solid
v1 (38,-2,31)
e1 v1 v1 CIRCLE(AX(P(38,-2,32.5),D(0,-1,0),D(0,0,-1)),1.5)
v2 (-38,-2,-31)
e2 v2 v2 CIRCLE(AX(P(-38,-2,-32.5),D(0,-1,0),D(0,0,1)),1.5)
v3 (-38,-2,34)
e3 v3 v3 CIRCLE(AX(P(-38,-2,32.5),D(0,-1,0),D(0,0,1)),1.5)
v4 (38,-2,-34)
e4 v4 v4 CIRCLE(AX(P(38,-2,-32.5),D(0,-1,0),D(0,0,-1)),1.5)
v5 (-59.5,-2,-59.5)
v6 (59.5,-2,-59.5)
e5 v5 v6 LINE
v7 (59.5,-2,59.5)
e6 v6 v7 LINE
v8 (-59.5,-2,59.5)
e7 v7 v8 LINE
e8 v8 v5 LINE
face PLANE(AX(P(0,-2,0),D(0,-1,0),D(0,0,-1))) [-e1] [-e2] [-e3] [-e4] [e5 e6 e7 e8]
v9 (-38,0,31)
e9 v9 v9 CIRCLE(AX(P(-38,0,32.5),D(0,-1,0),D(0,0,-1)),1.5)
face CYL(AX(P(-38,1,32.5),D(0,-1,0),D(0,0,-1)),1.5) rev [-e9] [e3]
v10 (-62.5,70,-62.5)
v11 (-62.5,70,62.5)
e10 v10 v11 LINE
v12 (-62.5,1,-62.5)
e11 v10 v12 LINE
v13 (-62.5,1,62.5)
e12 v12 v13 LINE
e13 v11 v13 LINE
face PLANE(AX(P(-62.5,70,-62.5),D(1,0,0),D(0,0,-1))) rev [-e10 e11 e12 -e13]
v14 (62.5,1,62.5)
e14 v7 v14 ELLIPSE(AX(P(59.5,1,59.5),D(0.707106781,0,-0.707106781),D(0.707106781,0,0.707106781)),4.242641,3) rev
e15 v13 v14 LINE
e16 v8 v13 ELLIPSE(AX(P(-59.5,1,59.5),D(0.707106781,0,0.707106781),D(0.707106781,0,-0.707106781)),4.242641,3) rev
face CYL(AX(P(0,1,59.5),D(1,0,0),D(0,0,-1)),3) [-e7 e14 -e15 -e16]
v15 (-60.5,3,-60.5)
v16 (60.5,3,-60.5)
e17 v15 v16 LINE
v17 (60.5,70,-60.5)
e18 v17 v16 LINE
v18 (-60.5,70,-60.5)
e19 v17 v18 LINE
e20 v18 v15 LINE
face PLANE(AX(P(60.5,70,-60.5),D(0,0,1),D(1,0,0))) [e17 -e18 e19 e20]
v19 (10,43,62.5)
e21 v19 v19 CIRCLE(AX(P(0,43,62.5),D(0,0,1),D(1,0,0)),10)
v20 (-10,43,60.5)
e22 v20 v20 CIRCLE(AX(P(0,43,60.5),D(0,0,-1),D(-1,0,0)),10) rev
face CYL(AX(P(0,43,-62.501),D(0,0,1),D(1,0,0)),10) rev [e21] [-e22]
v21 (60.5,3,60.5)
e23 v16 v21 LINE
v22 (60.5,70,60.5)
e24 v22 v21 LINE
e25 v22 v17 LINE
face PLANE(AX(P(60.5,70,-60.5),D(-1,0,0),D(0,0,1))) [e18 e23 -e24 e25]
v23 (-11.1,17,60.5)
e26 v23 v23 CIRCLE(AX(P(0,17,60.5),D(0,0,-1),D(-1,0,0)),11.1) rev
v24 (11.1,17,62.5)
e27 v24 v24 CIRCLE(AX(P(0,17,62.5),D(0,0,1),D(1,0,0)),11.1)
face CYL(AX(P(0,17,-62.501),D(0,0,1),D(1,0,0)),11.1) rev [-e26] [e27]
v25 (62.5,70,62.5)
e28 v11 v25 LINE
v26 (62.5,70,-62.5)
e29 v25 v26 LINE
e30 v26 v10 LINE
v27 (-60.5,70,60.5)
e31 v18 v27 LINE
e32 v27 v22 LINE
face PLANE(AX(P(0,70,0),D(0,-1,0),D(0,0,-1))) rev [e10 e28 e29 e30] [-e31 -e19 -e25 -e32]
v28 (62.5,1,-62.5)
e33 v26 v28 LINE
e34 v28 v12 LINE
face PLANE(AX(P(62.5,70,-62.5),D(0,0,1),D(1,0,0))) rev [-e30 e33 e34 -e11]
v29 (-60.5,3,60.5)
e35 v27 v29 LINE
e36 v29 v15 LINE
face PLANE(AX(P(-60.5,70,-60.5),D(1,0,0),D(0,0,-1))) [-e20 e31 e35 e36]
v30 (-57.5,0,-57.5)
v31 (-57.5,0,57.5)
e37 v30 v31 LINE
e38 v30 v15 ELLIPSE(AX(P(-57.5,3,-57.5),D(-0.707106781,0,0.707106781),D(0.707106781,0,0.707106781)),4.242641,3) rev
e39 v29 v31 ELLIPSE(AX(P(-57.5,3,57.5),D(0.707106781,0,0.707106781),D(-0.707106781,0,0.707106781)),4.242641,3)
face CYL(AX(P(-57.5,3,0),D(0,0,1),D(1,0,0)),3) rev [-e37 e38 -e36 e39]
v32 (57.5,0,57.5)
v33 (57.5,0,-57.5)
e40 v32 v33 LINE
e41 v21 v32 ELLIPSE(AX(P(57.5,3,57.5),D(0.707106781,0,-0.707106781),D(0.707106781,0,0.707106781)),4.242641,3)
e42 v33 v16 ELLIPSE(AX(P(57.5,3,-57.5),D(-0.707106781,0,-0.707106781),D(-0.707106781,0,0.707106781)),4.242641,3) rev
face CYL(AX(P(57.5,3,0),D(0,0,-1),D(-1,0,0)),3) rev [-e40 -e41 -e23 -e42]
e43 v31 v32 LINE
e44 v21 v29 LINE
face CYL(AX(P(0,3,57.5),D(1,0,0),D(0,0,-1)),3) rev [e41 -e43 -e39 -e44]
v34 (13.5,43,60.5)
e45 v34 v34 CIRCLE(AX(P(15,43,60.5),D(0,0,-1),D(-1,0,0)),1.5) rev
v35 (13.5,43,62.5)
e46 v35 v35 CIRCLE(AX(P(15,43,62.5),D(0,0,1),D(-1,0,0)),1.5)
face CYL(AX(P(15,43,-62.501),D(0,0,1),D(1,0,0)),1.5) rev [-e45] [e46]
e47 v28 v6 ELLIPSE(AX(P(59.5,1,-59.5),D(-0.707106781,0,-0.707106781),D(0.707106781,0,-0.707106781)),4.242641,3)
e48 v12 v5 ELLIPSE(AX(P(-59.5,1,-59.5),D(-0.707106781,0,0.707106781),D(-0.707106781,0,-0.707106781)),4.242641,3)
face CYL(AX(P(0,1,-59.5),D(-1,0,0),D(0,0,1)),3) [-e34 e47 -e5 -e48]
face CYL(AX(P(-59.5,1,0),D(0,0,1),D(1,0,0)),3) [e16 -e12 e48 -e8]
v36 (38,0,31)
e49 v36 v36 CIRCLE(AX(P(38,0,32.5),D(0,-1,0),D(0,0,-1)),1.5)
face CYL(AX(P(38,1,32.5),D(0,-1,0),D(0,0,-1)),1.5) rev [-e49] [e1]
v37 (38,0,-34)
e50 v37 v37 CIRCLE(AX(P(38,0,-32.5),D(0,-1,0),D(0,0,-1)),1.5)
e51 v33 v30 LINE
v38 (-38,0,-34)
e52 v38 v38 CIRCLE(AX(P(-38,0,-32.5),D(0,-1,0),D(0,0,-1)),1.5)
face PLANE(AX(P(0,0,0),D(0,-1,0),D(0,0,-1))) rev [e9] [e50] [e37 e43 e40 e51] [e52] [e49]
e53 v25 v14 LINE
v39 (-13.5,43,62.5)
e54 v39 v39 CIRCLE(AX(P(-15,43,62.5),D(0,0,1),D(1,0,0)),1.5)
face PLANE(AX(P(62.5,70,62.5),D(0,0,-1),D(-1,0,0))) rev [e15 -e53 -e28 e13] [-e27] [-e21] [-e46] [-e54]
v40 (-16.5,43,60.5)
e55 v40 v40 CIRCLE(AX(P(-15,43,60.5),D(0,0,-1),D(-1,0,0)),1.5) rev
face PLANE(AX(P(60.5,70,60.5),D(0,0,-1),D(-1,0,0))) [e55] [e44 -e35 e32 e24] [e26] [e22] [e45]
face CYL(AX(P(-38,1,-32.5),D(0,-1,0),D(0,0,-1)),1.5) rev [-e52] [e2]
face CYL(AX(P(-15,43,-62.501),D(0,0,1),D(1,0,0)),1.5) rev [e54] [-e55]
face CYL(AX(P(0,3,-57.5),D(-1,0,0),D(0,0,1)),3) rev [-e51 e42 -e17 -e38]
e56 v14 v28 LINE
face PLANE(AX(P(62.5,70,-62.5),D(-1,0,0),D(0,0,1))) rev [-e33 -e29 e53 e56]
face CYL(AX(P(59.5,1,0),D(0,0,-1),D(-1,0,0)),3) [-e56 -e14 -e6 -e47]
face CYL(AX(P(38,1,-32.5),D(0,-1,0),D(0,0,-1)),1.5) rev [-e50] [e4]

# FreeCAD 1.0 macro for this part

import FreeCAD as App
import Part
import Sketcher

V = App.Vector
Q = App.Units.Quantity


def edges_at(feature, points):
    """Names of the edges that pass closest to the given points."""
    edges = feature.Shape.Edges
    near = lambda p: min(range(len(edges)), key=lambda i: edges[i].distToShape(Part.Vertex(*p))[0])
    return sorted({f"Edge{near(p) + 1}" for p in points})


def add_polygon(sketch, points):
    """Adds a closed chain of lines whose ends are joined by coincident constraints."""
    first, n = sketch.GeometryCount, len(points)
    for a, b in zip(points, points[1:] + points[:1]):
        sketch.addGeometry(Part.LineSegment(App.Vector(*a, 0), App.Vector(*b, 0)), False)
    for i in range(n):
        sketch.addConstraint(Sketcher.Constraint("Coincident", first + i, 2, first + (i + 1) % n, 1))

doc = App.newDocument("Part")
body = doc.addObject("PartDesign::Body", "Body")

# Sketch on XZ plane
sketch1 = body.newObject("Sketcher::SketchObject", "Sketch")
sketch1.AttachmentSupport = (doc.getObject("XZ_Plane"), [""])
sketch1.MapMode = "FlatFace"
add_polygon(sketch1, [(-62.5, -62.5), (-62.5, 62.5), (62.5, 62.5), (62.5, -62.5)])  # lines 0-3
add_polygon(sketch1, [(60.5, 60.5), (-60.5, 60.5), (-60.5, -60.5), (60.5, -60.5)])  # lines 4-7
sketch1.addConstraint([
    Sketcher.Constraint("Vertical", 0),
    Sketcher.Constraint("Horizontal", 1),
    Sketcher.Constraint("Vertical", 2),
    Sketcher.Constraint("Horizontal", 3),
    Sketcher.Constraint("Horizontal", 4),
    Sketcher.Constraint("Vertical", 5),
    Sketcher.Constraint("Horizontal", 6),
    Sketcher.Constraint("Vertical", 7),
    Sketcher.Constraint("Symmetric", 0, 2, 2, 2, -1, 1),
    Sketcher.Constraint("Symmetric", 4, 2, 6, 2, -1, 1),
    Sketcher.Constraint("Equal", 3, 0),
    Sketcher.Constraint("Equal", 6, 5),
    Sketcher.Constraint("DistanceX", 1, 1, 1, 2, Q("125 mm")),
    Sketcher.Constraint("DistanceX", 4, 2, 4, 1, Q("121 mm")),
])
pad1 = body.newObject("PartDesign::Pad", "Pad")
pad1.Profile = sketch1
pad1.Length = 70
pad1.Reversed = True

# Sketch on XZ plane
sketch2 = body.newObject("Sketcher::SketchObject", "Sketch001")
sketch2.AttachmentSupport = (doc.getObject("XZ_Plane"), [""])
sketch2.MapMode = "FlatFace"
add_polygon(sketch2, [(-62.5, 62.5), (-62.5, -62.5), (62.5, -62.5), (62.5, 62.5)])  # lines 0-3
sketch2.addConstraint([
    Sketcher.Constraint("Vertical", 0),
    Sketcher.Constraint("Horizontal", 1),
    Sketcher.Constraint("Vertical", 2),
    Sketcher.Constraint("Horizontal", 3),
    Sketcher.Constraint("Symmetric", 0, 2, 2, 2, -1, 1),
    Sketcher.Constraint("Equal", 3, 0),
    Sketcher.Constraint("DistanceX", 1, 1, 1, 2, Q("125 mm")),
])
pad2 = body.newObject("PartDesign::Pad", "Pad001")
pad2.Profile = sketch2
pad2.Length = 2

# Sketch on XZ plane
sketch3 = body.newObject("Sketcher::SketchObject", "Sketch002")
sketch3.AttachmentSupport = (doc.getObject("XZ_Plane"), [""])
sketch3.MapMode = "FlatFace"
sketch3.AttachmentOffset = App.Placement(V(0, 0, 2), App.Rotation())
sketch3.addGeometry([
    Part.Circle(V(38, -32.5, 0), V(0, 0, 1), 1.5),
    Part.Circle(V(-38, -32.5, 0), V(0, 0, 1), 1.5),
    Part.Circle(V(38, 32.5, 0), V(0, 0, 1), 1.5),
    Part.Circle(V(-38, 32.5, 0), V(0, 0, 1), 1.5),
], False)
sketch3.addConstraint([
    Sketcher.Constraint("Equal", 0, 1),
    Sketcher.Constraint("Equal", 1, 2),
    Sketcher.Constraint("Equal", 2, 3),
    Sketcher.Constraint("Symmetric", 1, 3, 2, 3, -1, 1),
    Sketcher.Constraint("Symmetric", 0, 3, 3, 3, -1, 1),
    Sketcher.Constraint("Symmetric", 0, 3, 1, 3, -2),
    Sketcher.Constraint("Diameter", 0, Q("3 mm")),
    Sketcher.Constraint("DistanceX", -1, 1, 0, 3, Q("38 mm")),
    Sketcher.Constraint("DistanceY", 0, 3, 2, 3, Q("65 mm")),
])
pocket1 = body.newObject("PartDesign::Pocket", "Pocket")
pocket1.Profile = sketch3
pocket1.Length = 3
doc.recompute()

fillet = body.newObject("PartDesign::Fillet", "Fillet")
fillet.Base = (pocket1, edges_at(pocket1, [
    (-62.5, -2, 0),
    (0, -2, -62.5),
    (62.5, -2, 0),
    (0, -2, 62.5),
]))
fillet.Radius = 3
doc.recompute()

fillet2 = body.newObject("PartDesign::Fillet", "Fillet001")
fillet2.Base = (fillet, edges_at(fillet, [
    (-60.5, 0, 0),
    (0, 0, 60.5),
    (60.5, 0, 0),
    (0, 0, -60.5),
]))
fillet2.Radius = 3

# Sketch on XY plane
sketch4 = body.newObject("Sketcher::SketchObject", "Sketch003")
sketch4.AttachmentSupport = (doc.getObject("XY_Plane"), [""])
sketch4.MapMode = "FlatFace"
sketch4.AttachmentOffset = App.Placement(V(0, 0, 62.5), App.Rotation())
sketch4.addGeometry(Part.Circle(V(0, 17, 0), V(0, 0, 1), 11.1), False)
sketch4.addConstraint([
    Sketcher.Constraint("PointOnObject", 0, 3, -2),
    Sketcher.Constraint("Diameter", 0, Q("22.2 mm")),
    Sketcher.Constraint("DistanceY", -1, 1, 0, 3, Q("17 mm")),
])
pocket2 = body.newObject("PartDesign::Pocket", "Pocket001")
pocket2.Profile = sketch4
pocket2.Type = "UpToFirst"

# Sketch on XY plane
sketch5 = body.newObject("Sketcher::SketchObject", "Sketch004")
sketch5.AttachmentSupport = (doc.getObject("XY_Plane"), [""])
sketch5.MapMode = "FlatFace"
sketch5.AttachmentOffset = App.Placement(V(0, 0, 62.5), App.Rotation())
sketch5.addGeometry(Part.Circle(V(0, 43, 0), V(0, 0, 1), 10), False)
sketch5.addConstraint([
    Sketcher.Constraint("PointOnObject", 0, 3, -2),
    Sketcher.Constraint("Diameter", 0, Q("20 mm")),
    Sketcher.Constraint("DistanceY", -1, 1, 0, 3, Q("43 mm")),
])
pocket3 = body.newObject("PartDesign::Pocket", "Pocket002")
pocket3.Profile = sketch5
pocket3.Type = "UpToFirst"

# Sketch on XY plane
sketch6 = body.newObject("Sketcher::SketchObject", "Sketch005")
sketch6.AttachmentSupport = (doc.getObject("XY_Plane"), [""])
sketch6.MapMode = "FlatFace"
sketch6.AttachmentOffset = App.Placement(V(0, 0, 62.5), App.Rotation())
sketch6.addGeometry(Part.Circle(V(-15, 43, 0), V(0, 0, 1), 1.5), False)
sketch6.addConstraint([
    Sketcher.Constraint("Diameter", 0, Q("3 mm")),
    Sketcher.Constraint("DistanceX", 0, 3, -1, 1, Q("15 mm")),
    Sketcher.Constraint("DistanceY", -1, 1, 0, 3, Q("43 mm")),
])
pocket4 = body.newObject("PartDesign::Pocket", "Pocket003")
pocket4.Profile = sketch6
pocket4.Type = "UpToFirst"

# Sketch on XY plane
sketch7 = body.newObject("Sketcher::SketchObject", "Sketch006")
sketch7.AttachmentSupport = (doc.getObject("XY_Plane"), [""])
sketch7.MapMode = "FlatFace"
sketch7.AttachmentOffset = App.Placement(V(0, 0, 62.5), App.Rotation())
sketch7.addGeometry(Part.Circle(V(15, 43, 0), V(0, 0, 1), 1.5), False)
sketch7.addConstraint([
    Sketcher.Constraint("Diameter", 0, Q("3 mm")),
    Sketcher.Constraint("DistanceX", -1, 1, 0, 3, Q("15 mm")),
    Sketcher.Constraint("DistanceY", -1, 1, 0, 3, Q("43 mm")),
])
pocket5 = body.newObject("PartDesign::Pocket", "Pocket004")
pocket5.Profile = sketch7
pocket5.Type = "UpToFirst"

doc.recompute()
